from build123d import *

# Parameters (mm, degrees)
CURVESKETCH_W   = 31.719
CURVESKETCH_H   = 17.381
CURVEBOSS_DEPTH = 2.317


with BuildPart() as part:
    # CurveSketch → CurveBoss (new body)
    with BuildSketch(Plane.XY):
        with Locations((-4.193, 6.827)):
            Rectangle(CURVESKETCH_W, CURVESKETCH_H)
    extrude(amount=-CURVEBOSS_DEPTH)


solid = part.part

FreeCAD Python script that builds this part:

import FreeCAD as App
import Part
import Sketcher

V = App.Vector

doc = App.newDocument("Part")
body = doc.addObject("PartDesign::Body", "Body")

# Sketch on XY plane
sketch1 = body.newObject("Sketcher::SketchObject", "Sketch")
sketch1.AttachmentSupport = (doc.getObject("XY_Plane"), [""])
sketch1.MapMode = "FlatFace"
sketch1.addGeometry([
    Part.LineSegment(V(-20, 16, 0), V(-20, -2, 0)),
    Part.LineSegment(V(-20, -2, 0), V(12, -2, 0)),
    Part.LineSegment(V(12, -2, 0), V(12, 16, 0)),
    Part.LineSegment(V(12, 16, 0), V(-20, 16, 0)),
], False)
sketch1.addConstraint([
    Sketcher.Constraint("Coincident", 0, 2, 1, 1),
    Sketcher.Constraint("Coincident", 1, 2, 2, 1),
    Sketcher.Constraint("Coincident", 2, 2, 3, 1),
    Sketcher.Constraint("Coincident", 3, 2, 0, 1),
    Sketcher.Constraint("Vertical", 0),
    Sketcher.Constraint("Horizontal", 1),
    Sketcher.Constraint("Vertical", 2),
    Sketcher.Constraint("Horizontal", 3),
    Sketcher.Constraint("DistanceX", 1, 1, 1, 2, 31.719),
    Sketcher.Constraint("DistanceY", 0, 2, 0, 1, 17.381),
    Sketcher.Constraint("DistanceX", 0, 2, -1, 1, 20.0525),
    Sketcher.Constraint("DistanceY", 0, 2, -1, 1, 1.8635),
])
pad1 = body.newObject("PartDesign::Pad", "Pad")
pad1.Profile = sketch1
pad1.Length = 2.317
pad1.Reversed = True

doc.recompute()
